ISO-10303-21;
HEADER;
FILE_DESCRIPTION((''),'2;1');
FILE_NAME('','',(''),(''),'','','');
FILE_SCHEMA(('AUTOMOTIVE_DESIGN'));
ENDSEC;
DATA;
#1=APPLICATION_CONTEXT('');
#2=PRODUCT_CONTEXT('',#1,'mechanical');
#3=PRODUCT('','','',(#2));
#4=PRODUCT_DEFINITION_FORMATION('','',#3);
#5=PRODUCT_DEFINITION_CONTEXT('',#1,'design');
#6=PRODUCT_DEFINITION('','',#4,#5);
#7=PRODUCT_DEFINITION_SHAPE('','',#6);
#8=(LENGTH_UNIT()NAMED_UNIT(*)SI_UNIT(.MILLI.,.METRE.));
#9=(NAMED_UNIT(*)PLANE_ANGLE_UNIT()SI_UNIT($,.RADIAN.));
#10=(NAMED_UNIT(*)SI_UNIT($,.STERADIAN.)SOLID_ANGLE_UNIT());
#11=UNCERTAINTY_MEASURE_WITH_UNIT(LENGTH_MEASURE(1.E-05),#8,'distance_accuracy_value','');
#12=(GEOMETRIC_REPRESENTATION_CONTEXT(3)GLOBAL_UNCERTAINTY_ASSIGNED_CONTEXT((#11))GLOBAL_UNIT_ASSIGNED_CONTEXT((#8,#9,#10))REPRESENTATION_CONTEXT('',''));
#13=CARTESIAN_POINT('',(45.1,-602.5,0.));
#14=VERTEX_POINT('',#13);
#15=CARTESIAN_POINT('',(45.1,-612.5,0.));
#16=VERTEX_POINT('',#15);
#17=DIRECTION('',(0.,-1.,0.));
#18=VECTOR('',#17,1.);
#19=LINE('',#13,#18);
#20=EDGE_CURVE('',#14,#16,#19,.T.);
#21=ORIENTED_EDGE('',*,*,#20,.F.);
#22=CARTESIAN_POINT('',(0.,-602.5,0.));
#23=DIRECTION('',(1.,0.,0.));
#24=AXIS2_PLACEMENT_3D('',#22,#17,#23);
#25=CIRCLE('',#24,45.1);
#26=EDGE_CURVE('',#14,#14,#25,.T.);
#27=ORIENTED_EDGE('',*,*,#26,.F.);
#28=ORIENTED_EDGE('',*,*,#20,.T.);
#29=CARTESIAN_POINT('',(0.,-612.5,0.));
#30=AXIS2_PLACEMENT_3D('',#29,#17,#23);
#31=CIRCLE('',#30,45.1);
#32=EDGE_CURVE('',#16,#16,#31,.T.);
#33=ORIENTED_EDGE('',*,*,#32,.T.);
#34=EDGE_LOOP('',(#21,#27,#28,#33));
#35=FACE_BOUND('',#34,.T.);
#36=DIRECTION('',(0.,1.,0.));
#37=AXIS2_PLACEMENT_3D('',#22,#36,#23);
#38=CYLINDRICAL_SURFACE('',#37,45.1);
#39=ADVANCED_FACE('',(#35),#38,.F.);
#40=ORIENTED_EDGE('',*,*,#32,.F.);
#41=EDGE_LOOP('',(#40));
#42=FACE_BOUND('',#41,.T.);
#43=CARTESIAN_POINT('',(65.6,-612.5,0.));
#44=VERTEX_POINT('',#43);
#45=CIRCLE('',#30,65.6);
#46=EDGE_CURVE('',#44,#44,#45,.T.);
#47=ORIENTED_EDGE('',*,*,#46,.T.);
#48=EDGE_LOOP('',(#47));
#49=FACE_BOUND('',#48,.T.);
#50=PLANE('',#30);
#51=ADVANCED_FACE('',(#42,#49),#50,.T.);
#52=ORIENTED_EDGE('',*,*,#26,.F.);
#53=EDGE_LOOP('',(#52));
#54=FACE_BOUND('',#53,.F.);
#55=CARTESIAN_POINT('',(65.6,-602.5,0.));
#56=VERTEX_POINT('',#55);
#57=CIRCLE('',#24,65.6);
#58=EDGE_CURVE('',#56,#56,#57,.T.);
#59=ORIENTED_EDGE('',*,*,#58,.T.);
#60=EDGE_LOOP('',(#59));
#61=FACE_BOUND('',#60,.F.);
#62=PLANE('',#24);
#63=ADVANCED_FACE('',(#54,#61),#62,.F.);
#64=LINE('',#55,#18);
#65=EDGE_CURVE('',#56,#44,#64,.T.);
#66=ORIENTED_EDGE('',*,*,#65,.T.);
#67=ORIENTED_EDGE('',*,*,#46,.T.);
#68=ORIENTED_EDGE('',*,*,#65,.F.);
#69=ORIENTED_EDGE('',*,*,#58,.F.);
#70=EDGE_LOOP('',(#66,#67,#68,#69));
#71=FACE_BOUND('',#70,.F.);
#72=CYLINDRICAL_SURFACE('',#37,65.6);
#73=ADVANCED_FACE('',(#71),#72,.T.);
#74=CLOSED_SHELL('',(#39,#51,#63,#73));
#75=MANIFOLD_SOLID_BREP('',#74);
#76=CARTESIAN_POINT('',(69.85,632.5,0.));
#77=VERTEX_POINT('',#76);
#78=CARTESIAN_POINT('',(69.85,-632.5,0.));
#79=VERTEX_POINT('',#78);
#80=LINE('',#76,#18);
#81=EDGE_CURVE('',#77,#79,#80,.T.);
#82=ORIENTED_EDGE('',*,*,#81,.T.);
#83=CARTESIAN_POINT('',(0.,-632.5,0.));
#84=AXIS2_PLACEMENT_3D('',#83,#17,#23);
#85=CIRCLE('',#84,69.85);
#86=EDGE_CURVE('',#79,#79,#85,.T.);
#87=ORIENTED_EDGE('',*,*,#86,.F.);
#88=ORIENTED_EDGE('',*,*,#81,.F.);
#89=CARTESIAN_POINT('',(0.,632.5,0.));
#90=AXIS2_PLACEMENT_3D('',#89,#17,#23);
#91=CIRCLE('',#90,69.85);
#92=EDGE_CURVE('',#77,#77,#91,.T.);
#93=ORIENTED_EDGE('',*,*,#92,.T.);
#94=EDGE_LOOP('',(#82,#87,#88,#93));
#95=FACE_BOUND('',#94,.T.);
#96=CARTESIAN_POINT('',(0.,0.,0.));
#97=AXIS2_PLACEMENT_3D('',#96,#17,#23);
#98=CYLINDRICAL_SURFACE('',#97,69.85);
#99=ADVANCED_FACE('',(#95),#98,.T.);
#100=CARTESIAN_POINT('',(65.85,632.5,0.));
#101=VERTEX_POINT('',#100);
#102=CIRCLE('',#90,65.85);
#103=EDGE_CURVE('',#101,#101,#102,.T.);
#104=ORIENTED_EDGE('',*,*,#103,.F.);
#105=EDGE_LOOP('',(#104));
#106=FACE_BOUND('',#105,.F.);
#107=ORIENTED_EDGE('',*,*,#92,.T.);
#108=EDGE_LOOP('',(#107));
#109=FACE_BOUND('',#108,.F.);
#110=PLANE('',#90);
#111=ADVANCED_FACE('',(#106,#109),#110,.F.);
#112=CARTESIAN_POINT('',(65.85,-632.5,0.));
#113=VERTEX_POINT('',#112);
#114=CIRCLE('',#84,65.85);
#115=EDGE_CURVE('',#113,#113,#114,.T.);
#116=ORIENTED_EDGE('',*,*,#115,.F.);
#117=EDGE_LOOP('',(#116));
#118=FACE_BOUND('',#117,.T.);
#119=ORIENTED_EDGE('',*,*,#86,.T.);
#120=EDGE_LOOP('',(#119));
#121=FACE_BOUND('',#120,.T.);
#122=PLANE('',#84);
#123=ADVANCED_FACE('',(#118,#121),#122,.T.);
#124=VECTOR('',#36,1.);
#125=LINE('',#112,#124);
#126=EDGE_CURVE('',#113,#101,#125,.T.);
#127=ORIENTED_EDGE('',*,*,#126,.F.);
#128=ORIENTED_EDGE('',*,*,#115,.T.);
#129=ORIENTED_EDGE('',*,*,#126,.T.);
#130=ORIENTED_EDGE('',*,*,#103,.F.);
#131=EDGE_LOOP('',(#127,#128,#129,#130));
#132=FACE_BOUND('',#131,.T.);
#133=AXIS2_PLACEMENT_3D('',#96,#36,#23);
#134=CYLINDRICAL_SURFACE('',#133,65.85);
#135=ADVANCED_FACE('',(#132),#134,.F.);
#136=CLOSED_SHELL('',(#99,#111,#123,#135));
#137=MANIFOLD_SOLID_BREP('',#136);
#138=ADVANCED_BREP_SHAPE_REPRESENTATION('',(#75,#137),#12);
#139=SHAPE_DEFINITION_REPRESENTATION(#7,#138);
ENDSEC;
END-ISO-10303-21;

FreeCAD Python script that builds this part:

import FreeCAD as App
import Part
import Sketcher

V = App.Vector
Q = App.Units.Quantity

doc = App.newDocument("Part")
body = doc.addObject("PartDesign::Body", "Body")

sketch1 = body.newObject("Sketcher::SketchObject", "Sketch")
sketch1.AttachmentSupport = (doc.getObject("XZ_Plane"), [""])
sketch1.MapMode = "FlatFace"
sketch1.addGeometry(Part.Circle(V(0, 0, 0), V(0, 0, 1), 70), False)
sketch1.addGeometry(Part.Circle(V(0, 0, 0), V(0, 0, 1), 66), False)
sketch1.addConstraint(Sketcher.Constraint("Coincident", 0, 3, -1, 1))
sketch1.addConstraint(Sketcher.Constraint("Coincident", 1, 3, -1, 1))
sketch1.addConstraint(Sketcher.Constraint("Diameter", 0, Q("139.7 mm")))
sketch1.addConstraint(Sketcher.Constraint("Diameter", 1, Q("131.7 mm")))
pad1 = body.newObject("PartDesign::Pad", "Pad")
pad1.Profile = sketch1
pad1.Length = 1265
pad1.Midplane = True
body2 = doc.addObject("PartDesign::Body", "Body001")

sketch2 = body2.newObject("Sketcher::SketchObject", "Sketch001")
sketch2.AttachmentSupport = (doc.getObject("XZ_Plane001"), [""])
sketch2.MapMode = "FlatFace"
sketch2.AttachmentOffset = App.Placement(V(0, 0, 602.5), App.Rotation())
sketch2.addGeometry(Part.Circle(V(0, 0, 0), V(0, 0, 1), 66), False)
sketch2.addGeometry(Part.Circle(V(0, 0, 0), V(0, 0, 1), 45), False)
sketch2.addConstraint(Sketcher.Constraint("Coincident", 0, 3, -1, 1))
sketch2.addConstraint(Sketcher.Constraint("Coincident", 1, 3, -1, 1))
sketch2.addConstraint(Sketcher.Constraint("Diameter", 0, Q("131.2 mm")))
sketch2.addConstraint(Sketcher.Constraint("Diameter", 1, Q("90.2 mm")))
pad2 = body2.newObject("PartDesign::Pad", "Pad001")
pad2.Profile = sketch2
pad2.Length = 10

doc.recompute()
